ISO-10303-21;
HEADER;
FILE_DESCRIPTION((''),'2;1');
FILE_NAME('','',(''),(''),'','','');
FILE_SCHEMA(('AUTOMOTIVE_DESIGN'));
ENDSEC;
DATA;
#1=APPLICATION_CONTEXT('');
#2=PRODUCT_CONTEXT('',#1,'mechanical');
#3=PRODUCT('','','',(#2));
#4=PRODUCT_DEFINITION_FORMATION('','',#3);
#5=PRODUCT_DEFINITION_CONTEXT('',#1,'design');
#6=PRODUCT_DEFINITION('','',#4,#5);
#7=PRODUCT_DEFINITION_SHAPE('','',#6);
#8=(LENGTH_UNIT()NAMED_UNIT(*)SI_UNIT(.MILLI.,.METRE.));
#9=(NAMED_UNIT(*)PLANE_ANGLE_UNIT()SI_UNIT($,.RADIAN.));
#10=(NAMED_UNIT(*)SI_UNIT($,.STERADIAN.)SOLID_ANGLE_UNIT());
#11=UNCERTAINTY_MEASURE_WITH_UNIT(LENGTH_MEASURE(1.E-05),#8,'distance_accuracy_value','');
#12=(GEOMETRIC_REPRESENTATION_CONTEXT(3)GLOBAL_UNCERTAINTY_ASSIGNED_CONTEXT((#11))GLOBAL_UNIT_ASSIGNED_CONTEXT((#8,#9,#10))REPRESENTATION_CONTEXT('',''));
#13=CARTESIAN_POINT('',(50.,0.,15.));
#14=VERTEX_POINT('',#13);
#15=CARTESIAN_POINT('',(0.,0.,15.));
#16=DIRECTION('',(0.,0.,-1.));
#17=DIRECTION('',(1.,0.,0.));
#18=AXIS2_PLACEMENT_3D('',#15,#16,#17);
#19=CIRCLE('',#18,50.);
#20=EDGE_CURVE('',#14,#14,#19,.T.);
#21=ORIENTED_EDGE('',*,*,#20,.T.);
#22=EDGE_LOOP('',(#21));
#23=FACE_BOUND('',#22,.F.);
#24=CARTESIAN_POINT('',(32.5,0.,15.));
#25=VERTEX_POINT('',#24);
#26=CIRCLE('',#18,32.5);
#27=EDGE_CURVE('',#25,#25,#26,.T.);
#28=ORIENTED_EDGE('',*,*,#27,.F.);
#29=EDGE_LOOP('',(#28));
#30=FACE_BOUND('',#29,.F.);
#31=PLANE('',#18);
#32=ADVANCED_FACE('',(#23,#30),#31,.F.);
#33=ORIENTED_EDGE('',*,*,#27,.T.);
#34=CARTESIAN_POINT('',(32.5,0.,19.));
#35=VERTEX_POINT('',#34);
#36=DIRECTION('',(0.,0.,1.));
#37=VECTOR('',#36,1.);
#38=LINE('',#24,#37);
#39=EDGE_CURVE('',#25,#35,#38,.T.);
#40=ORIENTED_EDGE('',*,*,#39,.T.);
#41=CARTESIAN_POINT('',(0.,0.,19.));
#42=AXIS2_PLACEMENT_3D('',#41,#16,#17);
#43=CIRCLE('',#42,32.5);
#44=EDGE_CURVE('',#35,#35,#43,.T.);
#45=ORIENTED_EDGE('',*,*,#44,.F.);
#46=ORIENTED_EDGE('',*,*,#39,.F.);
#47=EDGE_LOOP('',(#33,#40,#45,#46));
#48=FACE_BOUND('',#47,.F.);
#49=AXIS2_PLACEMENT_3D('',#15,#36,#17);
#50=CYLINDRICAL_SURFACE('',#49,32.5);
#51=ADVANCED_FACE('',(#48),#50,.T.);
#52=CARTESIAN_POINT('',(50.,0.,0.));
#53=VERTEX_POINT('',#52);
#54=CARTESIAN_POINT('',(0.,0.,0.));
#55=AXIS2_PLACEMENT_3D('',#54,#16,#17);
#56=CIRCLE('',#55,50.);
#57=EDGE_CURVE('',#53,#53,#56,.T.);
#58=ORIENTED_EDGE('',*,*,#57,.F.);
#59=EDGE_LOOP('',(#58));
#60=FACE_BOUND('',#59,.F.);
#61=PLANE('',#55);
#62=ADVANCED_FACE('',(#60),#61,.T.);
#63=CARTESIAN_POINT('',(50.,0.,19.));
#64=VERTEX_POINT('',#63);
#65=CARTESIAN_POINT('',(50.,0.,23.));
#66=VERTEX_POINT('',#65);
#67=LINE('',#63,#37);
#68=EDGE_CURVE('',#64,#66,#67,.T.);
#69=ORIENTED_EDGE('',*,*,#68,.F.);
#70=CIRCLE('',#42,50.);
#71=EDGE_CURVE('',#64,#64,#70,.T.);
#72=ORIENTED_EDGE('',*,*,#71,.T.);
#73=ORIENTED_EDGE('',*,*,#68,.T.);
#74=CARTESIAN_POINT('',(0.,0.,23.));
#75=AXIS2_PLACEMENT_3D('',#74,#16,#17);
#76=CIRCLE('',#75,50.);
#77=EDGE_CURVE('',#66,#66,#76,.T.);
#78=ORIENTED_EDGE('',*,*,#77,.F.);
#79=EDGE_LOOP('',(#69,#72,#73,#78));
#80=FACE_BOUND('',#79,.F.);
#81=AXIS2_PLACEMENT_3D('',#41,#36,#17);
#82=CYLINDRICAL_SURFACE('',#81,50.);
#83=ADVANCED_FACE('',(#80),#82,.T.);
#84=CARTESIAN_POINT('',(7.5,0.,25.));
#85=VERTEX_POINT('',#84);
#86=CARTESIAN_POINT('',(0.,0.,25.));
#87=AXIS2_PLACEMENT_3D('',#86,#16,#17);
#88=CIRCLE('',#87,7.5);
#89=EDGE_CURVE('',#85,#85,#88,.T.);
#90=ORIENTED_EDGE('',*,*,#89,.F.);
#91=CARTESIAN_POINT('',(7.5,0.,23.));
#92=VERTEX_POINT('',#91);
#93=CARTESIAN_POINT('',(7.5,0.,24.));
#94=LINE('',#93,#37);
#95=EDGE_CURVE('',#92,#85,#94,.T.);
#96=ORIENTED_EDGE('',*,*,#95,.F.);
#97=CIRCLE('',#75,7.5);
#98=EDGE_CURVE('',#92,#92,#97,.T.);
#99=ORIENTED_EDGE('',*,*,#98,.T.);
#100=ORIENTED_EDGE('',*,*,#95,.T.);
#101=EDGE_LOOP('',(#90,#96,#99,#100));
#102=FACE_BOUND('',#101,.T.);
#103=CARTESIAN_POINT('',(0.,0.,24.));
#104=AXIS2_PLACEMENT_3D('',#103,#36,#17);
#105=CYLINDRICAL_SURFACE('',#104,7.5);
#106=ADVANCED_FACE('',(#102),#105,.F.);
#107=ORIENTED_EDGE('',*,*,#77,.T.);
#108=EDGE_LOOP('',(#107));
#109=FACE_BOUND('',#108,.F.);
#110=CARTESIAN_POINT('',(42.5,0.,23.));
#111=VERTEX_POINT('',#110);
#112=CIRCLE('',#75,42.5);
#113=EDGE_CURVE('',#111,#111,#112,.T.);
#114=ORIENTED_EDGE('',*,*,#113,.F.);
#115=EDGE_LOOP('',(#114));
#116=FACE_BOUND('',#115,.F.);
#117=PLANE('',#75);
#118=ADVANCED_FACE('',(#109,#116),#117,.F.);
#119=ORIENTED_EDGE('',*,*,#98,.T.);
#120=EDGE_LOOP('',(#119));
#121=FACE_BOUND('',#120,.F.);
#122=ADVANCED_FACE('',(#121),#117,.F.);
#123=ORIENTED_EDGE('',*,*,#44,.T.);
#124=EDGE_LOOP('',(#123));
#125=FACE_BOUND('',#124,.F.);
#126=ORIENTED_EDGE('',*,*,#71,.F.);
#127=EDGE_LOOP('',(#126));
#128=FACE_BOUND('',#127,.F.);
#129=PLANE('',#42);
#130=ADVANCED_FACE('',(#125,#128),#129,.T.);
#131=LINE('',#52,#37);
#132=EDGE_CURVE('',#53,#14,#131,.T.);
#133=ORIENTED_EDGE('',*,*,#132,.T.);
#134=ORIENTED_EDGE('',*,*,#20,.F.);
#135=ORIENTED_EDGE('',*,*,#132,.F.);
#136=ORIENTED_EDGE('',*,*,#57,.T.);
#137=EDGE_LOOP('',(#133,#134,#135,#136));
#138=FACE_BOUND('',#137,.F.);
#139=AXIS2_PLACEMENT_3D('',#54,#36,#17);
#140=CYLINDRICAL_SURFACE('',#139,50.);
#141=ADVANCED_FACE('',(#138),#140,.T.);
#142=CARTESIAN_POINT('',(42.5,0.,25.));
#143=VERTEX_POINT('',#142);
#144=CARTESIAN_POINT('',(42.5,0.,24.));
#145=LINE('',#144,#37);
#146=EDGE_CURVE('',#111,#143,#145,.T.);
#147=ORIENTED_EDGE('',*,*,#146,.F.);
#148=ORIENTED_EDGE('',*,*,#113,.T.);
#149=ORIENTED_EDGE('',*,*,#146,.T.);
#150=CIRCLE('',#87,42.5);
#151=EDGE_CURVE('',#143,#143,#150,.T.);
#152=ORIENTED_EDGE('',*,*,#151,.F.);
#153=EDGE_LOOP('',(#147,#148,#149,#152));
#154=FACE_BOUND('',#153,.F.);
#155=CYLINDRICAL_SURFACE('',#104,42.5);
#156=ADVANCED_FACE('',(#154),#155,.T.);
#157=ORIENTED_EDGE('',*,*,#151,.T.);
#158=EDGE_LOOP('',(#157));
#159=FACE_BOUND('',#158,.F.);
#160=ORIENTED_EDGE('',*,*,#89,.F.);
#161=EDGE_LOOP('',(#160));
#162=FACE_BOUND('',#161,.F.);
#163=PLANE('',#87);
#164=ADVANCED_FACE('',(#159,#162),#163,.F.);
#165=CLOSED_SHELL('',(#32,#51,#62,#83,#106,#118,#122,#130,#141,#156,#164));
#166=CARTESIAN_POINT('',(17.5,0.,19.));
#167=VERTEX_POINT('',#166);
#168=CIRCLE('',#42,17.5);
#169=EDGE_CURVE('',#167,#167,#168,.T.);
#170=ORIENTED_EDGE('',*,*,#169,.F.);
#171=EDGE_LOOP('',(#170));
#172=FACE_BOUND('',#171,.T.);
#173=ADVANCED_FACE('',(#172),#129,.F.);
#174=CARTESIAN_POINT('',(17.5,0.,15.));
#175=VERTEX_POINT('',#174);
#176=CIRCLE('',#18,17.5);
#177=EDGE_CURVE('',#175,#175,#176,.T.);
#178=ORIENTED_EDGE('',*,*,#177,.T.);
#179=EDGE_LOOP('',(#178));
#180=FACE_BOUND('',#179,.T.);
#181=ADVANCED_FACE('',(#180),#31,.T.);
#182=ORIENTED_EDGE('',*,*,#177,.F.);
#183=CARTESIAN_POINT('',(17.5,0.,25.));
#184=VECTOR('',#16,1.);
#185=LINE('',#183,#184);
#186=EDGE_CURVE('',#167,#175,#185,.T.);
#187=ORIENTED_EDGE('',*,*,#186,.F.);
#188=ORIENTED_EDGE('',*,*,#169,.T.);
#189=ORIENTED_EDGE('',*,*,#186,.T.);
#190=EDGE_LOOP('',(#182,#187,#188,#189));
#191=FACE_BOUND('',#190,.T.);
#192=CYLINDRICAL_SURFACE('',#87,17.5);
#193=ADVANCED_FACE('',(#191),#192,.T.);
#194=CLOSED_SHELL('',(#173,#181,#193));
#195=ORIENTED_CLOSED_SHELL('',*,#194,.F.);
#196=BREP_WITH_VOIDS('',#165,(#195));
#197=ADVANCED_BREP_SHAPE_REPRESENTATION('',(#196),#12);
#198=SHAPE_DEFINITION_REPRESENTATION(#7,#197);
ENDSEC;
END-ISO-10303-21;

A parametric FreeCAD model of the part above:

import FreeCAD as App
import Part
import Sketcher

V = App.Vector
Q = App.Units.Quantity

doc = App.newDocument("Part")
body = doc.addObject("PartDesign::Body", "Body")

sketch1 = body.newObject("Sketcher::SketchObject", "Sketch")
sketch1.AttachmentSupport = (doc.getObject("XZ_Plane"), [""])
sketch1.MapMode = "FlatFace"
sketch1.addGeometry([
    Part.LineSegment(V(0, 15, 0), V(0, 0, 0)),
    Part.LineSegment(V(0, 0, 0), V(50, 0, 0)),
    Part.LineSegment(V(50, 0, 0), V(50, 15, 0)),
    Part.LineSegment(V(50, 15, 0), V(32.5, 15, 0)),
    Part.LineSegment(V(32.5, 15, 0), V(32.5, 19, 0)),
    Part.LineSegment(V(32.5, 19, 0), V(50, 19, 0)),
    Part.LineSegment(V(50, 19, 0), V(50, 23, 0)),
    Part.LineSegment(V(50, 23, 0), V(42.5, 23, 0)),
    Part.LineSegment(V(42.5, 23, 0), V(42.5, 25, 0)),
    Part.LineSegment(V(42.5, 25, 0), V(7.5, 25, 0)),
    Part.LineSegment(V(7.5, 25, 0), V(7.5, 23, 0)),
    Part.LineSegment(V(7.5, 23, 0), V(0, 23, 0)),
    Part.LineSegment(V(0, 23, 0), V(0, 19, 0)),
    Part.LineSegment(V(0, 19, 0), V(17.5, 19, 0)),
    Part.LineSegment(V(17.5, 19, 0), V(17.5, 15, 0)),
    Part.LineSegment(V(17.5, 15, 0), V(0, 15, 0)),
], False)
sketch1.addConstraint([
    Sketcher.Constraint("Coincident", 0, 2, 1, 1),
    Sketcher.Constraint("Coincident", 1, 2, 2, 1),
    Sketcher.Constraint("Coincident", 2, 2, 3, 1),
    Sketcher.Constraint("Coincident", 3, 2, 4, 1),
    Sketcher.Constraint("Coincident", 4, 2, 5, 1),
    Sketcher.Constraint("Coincident", 5, 2, 6, 1),
    Sketcher.Constraint("Coincident", 6, 2, 7, 1),
    Sketcher.Constraint("Coincident", 7, 2, 8, 1),
    Sketcher.Constraint("Coincident", 8, 2, 9, 1),
    Sketcher.Constraint("Coincident", 9, 2, 10, 1),
    Sketcher.Constraint("Coincident", 10, 2, 11, 1),
    Sketcher.Constraint("Coincident", 11, 2, 12, 1),
    Sketcher.Constraint("Coincident", 12, 2, 13, 1),
    Sketcher.Constraint("Coincident", 13, 2, 14, 1),
    Sketcher.Constraint("Coincident", 14, 2, 15, 1),
    Sketcher.Constraint("Coincident", 15, 2, 0, 1),
    Sketcher.Constraint("Vertical", 0),
    Sketcher.Constraint("Horizontal", 1),
    Sketcher.Constraint("Vertical", 2),
    Sketcher.Constraint("Horizontal", 3),
    Sketcher.Constraint("Vertical", 4),
    Sketcher.Constraint("Horizontal", 5),
    Sketcher.Constraint("Vertical", 6),
    Sketcher.Constraint("Horizontal", 7),
    Sketcher.Constraint("Vertical", 8),
    Sketcher.Constraint("Horizontal", 9),
    Sketcher.Constraint("Vertical", 10),
    Sketcher.Constraint("Horizontal", 11),
    Sketcher.Constraint("Vertical", 12),
    Sketcher.Constraint("Horizontal", 13),
    Sketcher.Constraint("Vertical", 14),
    Sketcher.Constraint("Horizontal", 15),
    Sketcher.Constraint("Coincident", 0, 2, -1, 1),
    Sketcher.Constraint("PointOnObject", 11, 2, -2),
    Sketcher.Constraint("Horizontal", 7, 2, 10, 2),
    Sketcher.Constraint("Horizontal", 5, 2, 12, 2),
    Sketcher.Constraint("Horizontal", 3, 2, 14, 2),
    Sketcher.Constraint("Vertical", 2, 2, 5, 2),
    Sketcher.Constraint("Equal", 7, 11),
    Sketcher.Constraint("Equal", 5, 13),
    Sketcher.Constraint("Equal", 4, 6),
    Sketcher.Constraint("DistanceX", 1, 1, 1, 2, Q("50 mm")),
    Sketcher.Constraint("DistanceX", 9, 2, 9, 1, Q("35 mm")),
    Sketcher.Constraint("DistanceY", 0, 2, 0, 1, Q("15 mm")),
    Sketcher.Constraint("DistanceY", 4, 1, 4, 2, Q("4 mm")),
    Sketcher.Constraint("DistanceY", 8, 1, 8, 2, Q("2 mm")),
    Sketcher.Constraint("DistanceX", 3, 2, 3, 1, Q("17.5 mm")),
])
revolution = body.newObject("PartDesign::Revolution", "Revolution")
revolution.Profile = sketch1
revolution.ReferenceAxis = (sketch1, ["V_Axis"])
revolution.Angle = 360

doc.recompute()
